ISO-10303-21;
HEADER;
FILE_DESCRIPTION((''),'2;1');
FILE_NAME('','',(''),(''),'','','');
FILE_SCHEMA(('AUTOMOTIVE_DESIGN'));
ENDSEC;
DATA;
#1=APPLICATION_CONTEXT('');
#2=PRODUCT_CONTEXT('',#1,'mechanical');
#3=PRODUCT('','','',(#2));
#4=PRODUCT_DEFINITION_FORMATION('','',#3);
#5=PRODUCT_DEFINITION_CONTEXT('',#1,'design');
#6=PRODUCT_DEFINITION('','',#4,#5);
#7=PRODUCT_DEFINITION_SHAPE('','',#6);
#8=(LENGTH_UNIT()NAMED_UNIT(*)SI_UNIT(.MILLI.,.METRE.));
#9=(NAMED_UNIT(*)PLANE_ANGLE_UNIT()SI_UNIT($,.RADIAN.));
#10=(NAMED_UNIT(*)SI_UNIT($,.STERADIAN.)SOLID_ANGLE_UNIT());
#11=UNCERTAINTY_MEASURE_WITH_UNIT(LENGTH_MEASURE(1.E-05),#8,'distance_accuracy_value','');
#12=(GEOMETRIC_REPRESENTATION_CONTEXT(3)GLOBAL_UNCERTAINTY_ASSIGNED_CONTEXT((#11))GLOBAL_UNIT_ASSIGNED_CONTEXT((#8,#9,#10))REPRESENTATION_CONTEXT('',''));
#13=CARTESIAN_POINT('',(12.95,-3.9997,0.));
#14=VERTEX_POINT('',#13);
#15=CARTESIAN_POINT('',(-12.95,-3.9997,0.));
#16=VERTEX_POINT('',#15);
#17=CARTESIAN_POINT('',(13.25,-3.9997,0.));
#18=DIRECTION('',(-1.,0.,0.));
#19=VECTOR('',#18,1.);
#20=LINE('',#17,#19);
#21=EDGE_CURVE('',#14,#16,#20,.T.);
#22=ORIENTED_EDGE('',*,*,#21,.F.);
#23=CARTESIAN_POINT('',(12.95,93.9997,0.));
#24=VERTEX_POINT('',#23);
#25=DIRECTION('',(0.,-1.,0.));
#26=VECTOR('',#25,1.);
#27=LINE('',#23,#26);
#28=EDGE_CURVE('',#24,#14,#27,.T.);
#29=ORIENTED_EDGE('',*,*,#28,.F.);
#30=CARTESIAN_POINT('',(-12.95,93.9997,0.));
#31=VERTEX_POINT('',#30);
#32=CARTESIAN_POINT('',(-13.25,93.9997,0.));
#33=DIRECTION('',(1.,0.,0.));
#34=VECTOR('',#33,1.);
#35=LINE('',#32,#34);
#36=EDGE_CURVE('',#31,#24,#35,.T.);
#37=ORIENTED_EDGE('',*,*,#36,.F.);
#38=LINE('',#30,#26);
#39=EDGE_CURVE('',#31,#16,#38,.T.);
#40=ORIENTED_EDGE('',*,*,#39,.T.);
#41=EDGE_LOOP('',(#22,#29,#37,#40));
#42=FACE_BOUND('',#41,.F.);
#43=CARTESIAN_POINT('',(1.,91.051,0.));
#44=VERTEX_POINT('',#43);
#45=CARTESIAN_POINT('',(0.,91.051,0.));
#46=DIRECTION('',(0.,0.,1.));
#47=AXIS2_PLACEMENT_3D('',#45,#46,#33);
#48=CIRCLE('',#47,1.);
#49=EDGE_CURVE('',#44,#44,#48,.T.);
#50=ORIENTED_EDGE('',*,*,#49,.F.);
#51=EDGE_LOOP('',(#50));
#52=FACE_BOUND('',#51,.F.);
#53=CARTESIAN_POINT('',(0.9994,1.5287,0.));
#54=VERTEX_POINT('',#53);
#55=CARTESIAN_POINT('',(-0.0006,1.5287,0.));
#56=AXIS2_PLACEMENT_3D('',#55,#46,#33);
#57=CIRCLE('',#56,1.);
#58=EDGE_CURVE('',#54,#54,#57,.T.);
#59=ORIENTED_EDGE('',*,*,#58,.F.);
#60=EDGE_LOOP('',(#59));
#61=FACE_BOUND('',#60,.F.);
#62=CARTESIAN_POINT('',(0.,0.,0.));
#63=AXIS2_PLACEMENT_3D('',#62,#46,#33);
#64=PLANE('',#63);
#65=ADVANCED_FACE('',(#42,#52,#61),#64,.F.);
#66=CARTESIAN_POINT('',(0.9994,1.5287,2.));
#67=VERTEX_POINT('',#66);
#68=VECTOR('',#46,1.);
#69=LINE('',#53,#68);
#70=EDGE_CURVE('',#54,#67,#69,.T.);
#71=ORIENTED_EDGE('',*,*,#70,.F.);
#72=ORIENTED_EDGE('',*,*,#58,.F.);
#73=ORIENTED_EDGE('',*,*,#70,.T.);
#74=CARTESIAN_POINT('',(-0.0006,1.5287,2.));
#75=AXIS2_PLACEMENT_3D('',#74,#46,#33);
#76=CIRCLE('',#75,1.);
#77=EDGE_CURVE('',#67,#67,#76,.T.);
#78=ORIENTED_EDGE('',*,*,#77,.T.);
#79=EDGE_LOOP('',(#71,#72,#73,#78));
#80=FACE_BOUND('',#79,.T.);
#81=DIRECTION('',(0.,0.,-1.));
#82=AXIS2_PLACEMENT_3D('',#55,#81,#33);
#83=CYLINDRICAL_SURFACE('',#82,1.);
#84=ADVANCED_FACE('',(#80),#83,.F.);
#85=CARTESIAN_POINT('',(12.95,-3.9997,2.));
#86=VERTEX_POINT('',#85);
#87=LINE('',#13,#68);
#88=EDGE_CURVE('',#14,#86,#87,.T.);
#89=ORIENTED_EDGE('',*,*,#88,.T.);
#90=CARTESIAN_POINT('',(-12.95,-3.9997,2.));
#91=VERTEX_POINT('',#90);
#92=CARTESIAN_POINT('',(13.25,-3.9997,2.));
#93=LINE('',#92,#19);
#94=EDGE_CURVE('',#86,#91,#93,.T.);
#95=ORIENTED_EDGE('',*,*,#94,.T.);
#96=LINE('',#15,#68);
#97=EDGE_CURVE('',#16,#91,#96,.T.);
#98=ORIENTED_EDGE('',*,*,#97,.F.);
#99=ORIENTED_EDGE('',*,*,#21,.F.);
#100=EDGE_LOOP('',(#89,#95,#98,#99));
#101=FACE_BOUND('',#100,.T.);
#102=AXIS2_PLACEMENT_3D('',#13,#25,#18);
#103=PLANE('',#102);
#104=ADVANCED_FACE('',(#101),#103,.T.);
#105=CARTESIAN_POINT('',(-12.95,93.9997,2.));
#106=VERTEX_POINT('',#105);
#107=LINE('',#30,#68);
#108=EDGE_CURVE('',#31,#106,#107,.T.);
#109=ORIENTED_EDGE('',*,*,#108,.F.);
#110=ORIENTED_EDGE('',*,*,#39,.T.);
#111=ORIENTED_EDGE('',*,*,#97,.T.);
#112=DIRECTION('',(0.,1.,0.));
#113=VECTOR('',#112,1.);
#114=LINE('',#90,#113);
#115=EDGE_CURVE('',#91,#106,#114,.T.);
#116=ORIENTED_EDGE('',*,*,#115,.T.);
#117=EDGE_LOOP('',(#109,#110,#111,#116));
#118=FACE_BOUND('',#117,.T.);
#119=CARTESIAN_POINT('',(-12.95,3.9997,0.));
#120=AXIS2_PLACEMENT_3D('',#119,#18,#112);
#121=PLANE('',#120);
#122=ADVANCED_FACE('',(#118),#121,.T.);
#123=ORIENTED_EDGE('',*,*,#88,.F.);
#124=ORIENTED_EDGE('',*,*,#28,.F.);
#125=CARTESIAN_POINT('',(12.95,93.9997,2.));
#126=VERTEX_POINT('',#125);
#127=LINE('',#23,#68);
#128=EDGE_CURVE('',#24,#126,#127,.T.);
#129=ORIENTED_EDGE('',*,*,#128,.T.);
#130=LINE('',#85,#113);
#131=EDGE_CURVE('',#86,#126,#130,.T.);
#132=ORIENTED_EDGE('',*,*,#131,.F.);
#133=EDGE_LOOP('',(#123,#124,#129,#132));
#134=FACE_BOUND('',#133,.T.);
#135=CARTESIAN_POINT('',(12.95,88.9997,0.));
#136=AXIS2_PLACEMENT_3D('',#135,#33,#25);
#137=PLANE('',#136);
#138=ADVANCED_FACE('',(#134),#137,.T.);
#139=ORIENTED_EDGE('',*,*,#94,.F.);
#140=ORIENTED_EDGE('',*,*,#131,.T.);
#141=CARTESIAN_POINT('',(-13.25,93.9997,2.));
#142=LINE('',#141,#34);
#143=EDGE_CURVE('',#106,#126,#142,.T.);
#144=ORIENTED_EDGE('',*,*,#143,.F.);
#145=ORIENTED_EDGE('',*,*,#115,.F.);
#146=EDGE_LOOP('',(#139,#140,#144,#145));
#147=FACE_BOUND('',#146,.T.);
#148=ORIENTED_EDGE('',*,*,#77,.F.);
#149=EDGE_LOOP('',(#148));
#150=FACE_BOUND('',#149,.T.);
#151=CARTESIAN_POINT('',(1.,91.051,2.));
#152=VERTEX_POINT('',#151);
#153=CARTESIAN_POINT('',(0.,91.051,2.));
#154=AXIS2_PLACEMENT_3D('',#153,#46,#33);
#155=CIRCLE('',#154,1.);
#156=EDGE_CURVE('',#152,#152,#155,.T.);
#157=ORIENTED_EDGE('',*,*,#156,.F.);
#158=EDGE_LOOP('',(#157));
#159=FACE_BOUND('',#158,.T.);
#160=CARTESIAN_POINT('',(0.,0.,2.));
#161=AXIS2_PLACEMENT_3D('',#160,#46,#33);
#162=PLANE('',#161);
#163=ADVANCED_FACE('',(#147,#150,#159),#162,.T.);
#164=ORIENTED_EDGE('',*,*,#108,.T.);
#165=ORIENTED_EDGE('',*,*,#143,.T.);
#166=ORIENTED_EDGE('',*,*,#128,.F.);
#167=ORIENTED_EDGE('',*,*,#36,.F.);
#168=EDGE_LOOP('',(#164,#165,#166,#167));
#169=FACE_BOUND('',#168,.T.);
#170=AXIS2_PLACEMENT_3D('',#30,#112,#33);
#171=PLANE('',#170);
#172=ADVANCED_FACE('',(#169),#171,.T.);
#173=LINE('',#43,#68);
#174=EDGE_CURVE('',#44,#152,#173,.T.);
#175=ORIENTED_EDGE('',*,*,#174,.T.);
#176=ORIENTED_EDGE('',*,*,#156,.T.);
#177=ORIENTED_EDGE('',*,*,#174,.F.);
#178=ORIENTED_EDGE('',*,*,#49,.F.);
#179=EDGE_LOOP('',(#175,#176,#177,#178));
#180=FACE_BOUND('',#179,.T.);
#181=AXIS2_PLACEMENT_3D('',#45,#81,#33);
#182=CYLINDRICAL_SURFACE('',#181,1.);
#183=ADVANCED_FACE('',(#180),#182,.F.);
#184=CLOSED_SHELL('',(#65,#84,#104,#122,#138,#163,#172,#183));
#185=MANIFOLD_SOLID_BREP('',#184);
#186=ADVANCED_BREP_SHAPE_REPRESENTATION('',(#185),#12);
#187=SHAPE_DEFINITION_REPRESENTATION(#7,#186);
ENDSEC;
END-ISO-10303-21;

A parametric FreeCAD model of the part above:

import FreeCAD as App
import Part
import Sketcher
from FreeCAD import Vector

doc = App.newDocument("Part")
params = doc.addObject("Spreadsheet::Sheet", "Params")
for row, (alias, value) in enumerate([
    ("sketch1_diameter", "2 mm"),
    ("sketch1_width", "25.9 mm"),
    ("pad1_length", "2 mm"),
], start=1):
    params.set(f"A{row}", alias)
    params.set(f"B{row}", "=" + value)
    params.setAlias(f"B{row}", alias)

body = doc.addObject("PartDesign::Body", "Body")

# Sketch on XY plane
sketch1 = body.newObject("Sketcher::SketchObject", "Sketch")
sketch1.AttachmentSupport = (doc.getObject("XY_Plane"), [""])
sketch1.MapMode = "FlatFace"
sketch1.addGeometry([
    Part.LineSegment(Vector(-12.9, -4, 0), Vector(12.9, -4, 0)),  # 0
    Part.LineSegment(Vector(12.9, -4, 0), Vector(12.9, 94, 0)),  # 1
    Part.LineSegment(Vector(12.9, 94, 0), Vector(-12.9, 94, 0)),  # 2
    Part.LineSegment(Vector(-12.9, 94, 0), Vector(-12.9, -4, 0)),  # 3
    Part.Circle(Vector(0, 91.1, 0), Vector(0, 0, 1), 1),  # 4
    Part.Circle(Vector(0, 1.5, 0), Vector(0, 0, 1), 1),  # 5
], False)
sketch1.addConstraint([
    Sketcher.Constraint("Coincident", 0, 2, 1, 1),
    Sketcher.Constraint("Coincident", 1, 2, 2, 1),
    Sketcher.Constraint("Coincident", 2, 2, 3, 1),
    Sketcher.Constraint("Coincident", 3, 2, 0, 1),
    Sketcher.Constraint("Horizontal", 0),
    Sketcher.Constraint("Vertical", 1),
    Sketcher.Constraint("Horizontal", 2),
    Sketcher.Constraint("Vertical", 3),
    Sketcher.Constraint("Equal", 4, 5),
    Sketcher.Constraint("PointOnObject", 4, 3, -2),
    Sketcher.Constraint("Diameter", 4, 2.0),
    Sketcher.Constraint("DistanceX", 0, 1, 0, 2, 25.9),
    Sketcher.Constraint("DistanceX", -1, 1, 0, 2, 12.95),
    Sketcher.Constraint("DistanceY", 1, 1, 1, 2, 97.9994),
    Sketcher.Constraint("DistanceY", -1, 1, 4, 3, 91.051),
    Sketcher.Constraint("DistanceY", 5, 3, 1, 2, 92.471),
    Sketcher.Constraint("DistanceX", 5, 3, -1, 1, 0.0006),
    Sketcher.Constraint("DistanceY", -1, 1, 5, 3, 1.5287),
])
sketch1.setExpression("Constraints[10]", "Params.sketch1_diameter")
sketch1.setExpression("Constraints[11]", "Params.sketch1_width")
pad1 = body.newObject("PartDesign::Pad", "Pad")
pad1.Profile = sketch1
pad1.setExpression("Length", "Params.pad1_length")

doc.recompute()
